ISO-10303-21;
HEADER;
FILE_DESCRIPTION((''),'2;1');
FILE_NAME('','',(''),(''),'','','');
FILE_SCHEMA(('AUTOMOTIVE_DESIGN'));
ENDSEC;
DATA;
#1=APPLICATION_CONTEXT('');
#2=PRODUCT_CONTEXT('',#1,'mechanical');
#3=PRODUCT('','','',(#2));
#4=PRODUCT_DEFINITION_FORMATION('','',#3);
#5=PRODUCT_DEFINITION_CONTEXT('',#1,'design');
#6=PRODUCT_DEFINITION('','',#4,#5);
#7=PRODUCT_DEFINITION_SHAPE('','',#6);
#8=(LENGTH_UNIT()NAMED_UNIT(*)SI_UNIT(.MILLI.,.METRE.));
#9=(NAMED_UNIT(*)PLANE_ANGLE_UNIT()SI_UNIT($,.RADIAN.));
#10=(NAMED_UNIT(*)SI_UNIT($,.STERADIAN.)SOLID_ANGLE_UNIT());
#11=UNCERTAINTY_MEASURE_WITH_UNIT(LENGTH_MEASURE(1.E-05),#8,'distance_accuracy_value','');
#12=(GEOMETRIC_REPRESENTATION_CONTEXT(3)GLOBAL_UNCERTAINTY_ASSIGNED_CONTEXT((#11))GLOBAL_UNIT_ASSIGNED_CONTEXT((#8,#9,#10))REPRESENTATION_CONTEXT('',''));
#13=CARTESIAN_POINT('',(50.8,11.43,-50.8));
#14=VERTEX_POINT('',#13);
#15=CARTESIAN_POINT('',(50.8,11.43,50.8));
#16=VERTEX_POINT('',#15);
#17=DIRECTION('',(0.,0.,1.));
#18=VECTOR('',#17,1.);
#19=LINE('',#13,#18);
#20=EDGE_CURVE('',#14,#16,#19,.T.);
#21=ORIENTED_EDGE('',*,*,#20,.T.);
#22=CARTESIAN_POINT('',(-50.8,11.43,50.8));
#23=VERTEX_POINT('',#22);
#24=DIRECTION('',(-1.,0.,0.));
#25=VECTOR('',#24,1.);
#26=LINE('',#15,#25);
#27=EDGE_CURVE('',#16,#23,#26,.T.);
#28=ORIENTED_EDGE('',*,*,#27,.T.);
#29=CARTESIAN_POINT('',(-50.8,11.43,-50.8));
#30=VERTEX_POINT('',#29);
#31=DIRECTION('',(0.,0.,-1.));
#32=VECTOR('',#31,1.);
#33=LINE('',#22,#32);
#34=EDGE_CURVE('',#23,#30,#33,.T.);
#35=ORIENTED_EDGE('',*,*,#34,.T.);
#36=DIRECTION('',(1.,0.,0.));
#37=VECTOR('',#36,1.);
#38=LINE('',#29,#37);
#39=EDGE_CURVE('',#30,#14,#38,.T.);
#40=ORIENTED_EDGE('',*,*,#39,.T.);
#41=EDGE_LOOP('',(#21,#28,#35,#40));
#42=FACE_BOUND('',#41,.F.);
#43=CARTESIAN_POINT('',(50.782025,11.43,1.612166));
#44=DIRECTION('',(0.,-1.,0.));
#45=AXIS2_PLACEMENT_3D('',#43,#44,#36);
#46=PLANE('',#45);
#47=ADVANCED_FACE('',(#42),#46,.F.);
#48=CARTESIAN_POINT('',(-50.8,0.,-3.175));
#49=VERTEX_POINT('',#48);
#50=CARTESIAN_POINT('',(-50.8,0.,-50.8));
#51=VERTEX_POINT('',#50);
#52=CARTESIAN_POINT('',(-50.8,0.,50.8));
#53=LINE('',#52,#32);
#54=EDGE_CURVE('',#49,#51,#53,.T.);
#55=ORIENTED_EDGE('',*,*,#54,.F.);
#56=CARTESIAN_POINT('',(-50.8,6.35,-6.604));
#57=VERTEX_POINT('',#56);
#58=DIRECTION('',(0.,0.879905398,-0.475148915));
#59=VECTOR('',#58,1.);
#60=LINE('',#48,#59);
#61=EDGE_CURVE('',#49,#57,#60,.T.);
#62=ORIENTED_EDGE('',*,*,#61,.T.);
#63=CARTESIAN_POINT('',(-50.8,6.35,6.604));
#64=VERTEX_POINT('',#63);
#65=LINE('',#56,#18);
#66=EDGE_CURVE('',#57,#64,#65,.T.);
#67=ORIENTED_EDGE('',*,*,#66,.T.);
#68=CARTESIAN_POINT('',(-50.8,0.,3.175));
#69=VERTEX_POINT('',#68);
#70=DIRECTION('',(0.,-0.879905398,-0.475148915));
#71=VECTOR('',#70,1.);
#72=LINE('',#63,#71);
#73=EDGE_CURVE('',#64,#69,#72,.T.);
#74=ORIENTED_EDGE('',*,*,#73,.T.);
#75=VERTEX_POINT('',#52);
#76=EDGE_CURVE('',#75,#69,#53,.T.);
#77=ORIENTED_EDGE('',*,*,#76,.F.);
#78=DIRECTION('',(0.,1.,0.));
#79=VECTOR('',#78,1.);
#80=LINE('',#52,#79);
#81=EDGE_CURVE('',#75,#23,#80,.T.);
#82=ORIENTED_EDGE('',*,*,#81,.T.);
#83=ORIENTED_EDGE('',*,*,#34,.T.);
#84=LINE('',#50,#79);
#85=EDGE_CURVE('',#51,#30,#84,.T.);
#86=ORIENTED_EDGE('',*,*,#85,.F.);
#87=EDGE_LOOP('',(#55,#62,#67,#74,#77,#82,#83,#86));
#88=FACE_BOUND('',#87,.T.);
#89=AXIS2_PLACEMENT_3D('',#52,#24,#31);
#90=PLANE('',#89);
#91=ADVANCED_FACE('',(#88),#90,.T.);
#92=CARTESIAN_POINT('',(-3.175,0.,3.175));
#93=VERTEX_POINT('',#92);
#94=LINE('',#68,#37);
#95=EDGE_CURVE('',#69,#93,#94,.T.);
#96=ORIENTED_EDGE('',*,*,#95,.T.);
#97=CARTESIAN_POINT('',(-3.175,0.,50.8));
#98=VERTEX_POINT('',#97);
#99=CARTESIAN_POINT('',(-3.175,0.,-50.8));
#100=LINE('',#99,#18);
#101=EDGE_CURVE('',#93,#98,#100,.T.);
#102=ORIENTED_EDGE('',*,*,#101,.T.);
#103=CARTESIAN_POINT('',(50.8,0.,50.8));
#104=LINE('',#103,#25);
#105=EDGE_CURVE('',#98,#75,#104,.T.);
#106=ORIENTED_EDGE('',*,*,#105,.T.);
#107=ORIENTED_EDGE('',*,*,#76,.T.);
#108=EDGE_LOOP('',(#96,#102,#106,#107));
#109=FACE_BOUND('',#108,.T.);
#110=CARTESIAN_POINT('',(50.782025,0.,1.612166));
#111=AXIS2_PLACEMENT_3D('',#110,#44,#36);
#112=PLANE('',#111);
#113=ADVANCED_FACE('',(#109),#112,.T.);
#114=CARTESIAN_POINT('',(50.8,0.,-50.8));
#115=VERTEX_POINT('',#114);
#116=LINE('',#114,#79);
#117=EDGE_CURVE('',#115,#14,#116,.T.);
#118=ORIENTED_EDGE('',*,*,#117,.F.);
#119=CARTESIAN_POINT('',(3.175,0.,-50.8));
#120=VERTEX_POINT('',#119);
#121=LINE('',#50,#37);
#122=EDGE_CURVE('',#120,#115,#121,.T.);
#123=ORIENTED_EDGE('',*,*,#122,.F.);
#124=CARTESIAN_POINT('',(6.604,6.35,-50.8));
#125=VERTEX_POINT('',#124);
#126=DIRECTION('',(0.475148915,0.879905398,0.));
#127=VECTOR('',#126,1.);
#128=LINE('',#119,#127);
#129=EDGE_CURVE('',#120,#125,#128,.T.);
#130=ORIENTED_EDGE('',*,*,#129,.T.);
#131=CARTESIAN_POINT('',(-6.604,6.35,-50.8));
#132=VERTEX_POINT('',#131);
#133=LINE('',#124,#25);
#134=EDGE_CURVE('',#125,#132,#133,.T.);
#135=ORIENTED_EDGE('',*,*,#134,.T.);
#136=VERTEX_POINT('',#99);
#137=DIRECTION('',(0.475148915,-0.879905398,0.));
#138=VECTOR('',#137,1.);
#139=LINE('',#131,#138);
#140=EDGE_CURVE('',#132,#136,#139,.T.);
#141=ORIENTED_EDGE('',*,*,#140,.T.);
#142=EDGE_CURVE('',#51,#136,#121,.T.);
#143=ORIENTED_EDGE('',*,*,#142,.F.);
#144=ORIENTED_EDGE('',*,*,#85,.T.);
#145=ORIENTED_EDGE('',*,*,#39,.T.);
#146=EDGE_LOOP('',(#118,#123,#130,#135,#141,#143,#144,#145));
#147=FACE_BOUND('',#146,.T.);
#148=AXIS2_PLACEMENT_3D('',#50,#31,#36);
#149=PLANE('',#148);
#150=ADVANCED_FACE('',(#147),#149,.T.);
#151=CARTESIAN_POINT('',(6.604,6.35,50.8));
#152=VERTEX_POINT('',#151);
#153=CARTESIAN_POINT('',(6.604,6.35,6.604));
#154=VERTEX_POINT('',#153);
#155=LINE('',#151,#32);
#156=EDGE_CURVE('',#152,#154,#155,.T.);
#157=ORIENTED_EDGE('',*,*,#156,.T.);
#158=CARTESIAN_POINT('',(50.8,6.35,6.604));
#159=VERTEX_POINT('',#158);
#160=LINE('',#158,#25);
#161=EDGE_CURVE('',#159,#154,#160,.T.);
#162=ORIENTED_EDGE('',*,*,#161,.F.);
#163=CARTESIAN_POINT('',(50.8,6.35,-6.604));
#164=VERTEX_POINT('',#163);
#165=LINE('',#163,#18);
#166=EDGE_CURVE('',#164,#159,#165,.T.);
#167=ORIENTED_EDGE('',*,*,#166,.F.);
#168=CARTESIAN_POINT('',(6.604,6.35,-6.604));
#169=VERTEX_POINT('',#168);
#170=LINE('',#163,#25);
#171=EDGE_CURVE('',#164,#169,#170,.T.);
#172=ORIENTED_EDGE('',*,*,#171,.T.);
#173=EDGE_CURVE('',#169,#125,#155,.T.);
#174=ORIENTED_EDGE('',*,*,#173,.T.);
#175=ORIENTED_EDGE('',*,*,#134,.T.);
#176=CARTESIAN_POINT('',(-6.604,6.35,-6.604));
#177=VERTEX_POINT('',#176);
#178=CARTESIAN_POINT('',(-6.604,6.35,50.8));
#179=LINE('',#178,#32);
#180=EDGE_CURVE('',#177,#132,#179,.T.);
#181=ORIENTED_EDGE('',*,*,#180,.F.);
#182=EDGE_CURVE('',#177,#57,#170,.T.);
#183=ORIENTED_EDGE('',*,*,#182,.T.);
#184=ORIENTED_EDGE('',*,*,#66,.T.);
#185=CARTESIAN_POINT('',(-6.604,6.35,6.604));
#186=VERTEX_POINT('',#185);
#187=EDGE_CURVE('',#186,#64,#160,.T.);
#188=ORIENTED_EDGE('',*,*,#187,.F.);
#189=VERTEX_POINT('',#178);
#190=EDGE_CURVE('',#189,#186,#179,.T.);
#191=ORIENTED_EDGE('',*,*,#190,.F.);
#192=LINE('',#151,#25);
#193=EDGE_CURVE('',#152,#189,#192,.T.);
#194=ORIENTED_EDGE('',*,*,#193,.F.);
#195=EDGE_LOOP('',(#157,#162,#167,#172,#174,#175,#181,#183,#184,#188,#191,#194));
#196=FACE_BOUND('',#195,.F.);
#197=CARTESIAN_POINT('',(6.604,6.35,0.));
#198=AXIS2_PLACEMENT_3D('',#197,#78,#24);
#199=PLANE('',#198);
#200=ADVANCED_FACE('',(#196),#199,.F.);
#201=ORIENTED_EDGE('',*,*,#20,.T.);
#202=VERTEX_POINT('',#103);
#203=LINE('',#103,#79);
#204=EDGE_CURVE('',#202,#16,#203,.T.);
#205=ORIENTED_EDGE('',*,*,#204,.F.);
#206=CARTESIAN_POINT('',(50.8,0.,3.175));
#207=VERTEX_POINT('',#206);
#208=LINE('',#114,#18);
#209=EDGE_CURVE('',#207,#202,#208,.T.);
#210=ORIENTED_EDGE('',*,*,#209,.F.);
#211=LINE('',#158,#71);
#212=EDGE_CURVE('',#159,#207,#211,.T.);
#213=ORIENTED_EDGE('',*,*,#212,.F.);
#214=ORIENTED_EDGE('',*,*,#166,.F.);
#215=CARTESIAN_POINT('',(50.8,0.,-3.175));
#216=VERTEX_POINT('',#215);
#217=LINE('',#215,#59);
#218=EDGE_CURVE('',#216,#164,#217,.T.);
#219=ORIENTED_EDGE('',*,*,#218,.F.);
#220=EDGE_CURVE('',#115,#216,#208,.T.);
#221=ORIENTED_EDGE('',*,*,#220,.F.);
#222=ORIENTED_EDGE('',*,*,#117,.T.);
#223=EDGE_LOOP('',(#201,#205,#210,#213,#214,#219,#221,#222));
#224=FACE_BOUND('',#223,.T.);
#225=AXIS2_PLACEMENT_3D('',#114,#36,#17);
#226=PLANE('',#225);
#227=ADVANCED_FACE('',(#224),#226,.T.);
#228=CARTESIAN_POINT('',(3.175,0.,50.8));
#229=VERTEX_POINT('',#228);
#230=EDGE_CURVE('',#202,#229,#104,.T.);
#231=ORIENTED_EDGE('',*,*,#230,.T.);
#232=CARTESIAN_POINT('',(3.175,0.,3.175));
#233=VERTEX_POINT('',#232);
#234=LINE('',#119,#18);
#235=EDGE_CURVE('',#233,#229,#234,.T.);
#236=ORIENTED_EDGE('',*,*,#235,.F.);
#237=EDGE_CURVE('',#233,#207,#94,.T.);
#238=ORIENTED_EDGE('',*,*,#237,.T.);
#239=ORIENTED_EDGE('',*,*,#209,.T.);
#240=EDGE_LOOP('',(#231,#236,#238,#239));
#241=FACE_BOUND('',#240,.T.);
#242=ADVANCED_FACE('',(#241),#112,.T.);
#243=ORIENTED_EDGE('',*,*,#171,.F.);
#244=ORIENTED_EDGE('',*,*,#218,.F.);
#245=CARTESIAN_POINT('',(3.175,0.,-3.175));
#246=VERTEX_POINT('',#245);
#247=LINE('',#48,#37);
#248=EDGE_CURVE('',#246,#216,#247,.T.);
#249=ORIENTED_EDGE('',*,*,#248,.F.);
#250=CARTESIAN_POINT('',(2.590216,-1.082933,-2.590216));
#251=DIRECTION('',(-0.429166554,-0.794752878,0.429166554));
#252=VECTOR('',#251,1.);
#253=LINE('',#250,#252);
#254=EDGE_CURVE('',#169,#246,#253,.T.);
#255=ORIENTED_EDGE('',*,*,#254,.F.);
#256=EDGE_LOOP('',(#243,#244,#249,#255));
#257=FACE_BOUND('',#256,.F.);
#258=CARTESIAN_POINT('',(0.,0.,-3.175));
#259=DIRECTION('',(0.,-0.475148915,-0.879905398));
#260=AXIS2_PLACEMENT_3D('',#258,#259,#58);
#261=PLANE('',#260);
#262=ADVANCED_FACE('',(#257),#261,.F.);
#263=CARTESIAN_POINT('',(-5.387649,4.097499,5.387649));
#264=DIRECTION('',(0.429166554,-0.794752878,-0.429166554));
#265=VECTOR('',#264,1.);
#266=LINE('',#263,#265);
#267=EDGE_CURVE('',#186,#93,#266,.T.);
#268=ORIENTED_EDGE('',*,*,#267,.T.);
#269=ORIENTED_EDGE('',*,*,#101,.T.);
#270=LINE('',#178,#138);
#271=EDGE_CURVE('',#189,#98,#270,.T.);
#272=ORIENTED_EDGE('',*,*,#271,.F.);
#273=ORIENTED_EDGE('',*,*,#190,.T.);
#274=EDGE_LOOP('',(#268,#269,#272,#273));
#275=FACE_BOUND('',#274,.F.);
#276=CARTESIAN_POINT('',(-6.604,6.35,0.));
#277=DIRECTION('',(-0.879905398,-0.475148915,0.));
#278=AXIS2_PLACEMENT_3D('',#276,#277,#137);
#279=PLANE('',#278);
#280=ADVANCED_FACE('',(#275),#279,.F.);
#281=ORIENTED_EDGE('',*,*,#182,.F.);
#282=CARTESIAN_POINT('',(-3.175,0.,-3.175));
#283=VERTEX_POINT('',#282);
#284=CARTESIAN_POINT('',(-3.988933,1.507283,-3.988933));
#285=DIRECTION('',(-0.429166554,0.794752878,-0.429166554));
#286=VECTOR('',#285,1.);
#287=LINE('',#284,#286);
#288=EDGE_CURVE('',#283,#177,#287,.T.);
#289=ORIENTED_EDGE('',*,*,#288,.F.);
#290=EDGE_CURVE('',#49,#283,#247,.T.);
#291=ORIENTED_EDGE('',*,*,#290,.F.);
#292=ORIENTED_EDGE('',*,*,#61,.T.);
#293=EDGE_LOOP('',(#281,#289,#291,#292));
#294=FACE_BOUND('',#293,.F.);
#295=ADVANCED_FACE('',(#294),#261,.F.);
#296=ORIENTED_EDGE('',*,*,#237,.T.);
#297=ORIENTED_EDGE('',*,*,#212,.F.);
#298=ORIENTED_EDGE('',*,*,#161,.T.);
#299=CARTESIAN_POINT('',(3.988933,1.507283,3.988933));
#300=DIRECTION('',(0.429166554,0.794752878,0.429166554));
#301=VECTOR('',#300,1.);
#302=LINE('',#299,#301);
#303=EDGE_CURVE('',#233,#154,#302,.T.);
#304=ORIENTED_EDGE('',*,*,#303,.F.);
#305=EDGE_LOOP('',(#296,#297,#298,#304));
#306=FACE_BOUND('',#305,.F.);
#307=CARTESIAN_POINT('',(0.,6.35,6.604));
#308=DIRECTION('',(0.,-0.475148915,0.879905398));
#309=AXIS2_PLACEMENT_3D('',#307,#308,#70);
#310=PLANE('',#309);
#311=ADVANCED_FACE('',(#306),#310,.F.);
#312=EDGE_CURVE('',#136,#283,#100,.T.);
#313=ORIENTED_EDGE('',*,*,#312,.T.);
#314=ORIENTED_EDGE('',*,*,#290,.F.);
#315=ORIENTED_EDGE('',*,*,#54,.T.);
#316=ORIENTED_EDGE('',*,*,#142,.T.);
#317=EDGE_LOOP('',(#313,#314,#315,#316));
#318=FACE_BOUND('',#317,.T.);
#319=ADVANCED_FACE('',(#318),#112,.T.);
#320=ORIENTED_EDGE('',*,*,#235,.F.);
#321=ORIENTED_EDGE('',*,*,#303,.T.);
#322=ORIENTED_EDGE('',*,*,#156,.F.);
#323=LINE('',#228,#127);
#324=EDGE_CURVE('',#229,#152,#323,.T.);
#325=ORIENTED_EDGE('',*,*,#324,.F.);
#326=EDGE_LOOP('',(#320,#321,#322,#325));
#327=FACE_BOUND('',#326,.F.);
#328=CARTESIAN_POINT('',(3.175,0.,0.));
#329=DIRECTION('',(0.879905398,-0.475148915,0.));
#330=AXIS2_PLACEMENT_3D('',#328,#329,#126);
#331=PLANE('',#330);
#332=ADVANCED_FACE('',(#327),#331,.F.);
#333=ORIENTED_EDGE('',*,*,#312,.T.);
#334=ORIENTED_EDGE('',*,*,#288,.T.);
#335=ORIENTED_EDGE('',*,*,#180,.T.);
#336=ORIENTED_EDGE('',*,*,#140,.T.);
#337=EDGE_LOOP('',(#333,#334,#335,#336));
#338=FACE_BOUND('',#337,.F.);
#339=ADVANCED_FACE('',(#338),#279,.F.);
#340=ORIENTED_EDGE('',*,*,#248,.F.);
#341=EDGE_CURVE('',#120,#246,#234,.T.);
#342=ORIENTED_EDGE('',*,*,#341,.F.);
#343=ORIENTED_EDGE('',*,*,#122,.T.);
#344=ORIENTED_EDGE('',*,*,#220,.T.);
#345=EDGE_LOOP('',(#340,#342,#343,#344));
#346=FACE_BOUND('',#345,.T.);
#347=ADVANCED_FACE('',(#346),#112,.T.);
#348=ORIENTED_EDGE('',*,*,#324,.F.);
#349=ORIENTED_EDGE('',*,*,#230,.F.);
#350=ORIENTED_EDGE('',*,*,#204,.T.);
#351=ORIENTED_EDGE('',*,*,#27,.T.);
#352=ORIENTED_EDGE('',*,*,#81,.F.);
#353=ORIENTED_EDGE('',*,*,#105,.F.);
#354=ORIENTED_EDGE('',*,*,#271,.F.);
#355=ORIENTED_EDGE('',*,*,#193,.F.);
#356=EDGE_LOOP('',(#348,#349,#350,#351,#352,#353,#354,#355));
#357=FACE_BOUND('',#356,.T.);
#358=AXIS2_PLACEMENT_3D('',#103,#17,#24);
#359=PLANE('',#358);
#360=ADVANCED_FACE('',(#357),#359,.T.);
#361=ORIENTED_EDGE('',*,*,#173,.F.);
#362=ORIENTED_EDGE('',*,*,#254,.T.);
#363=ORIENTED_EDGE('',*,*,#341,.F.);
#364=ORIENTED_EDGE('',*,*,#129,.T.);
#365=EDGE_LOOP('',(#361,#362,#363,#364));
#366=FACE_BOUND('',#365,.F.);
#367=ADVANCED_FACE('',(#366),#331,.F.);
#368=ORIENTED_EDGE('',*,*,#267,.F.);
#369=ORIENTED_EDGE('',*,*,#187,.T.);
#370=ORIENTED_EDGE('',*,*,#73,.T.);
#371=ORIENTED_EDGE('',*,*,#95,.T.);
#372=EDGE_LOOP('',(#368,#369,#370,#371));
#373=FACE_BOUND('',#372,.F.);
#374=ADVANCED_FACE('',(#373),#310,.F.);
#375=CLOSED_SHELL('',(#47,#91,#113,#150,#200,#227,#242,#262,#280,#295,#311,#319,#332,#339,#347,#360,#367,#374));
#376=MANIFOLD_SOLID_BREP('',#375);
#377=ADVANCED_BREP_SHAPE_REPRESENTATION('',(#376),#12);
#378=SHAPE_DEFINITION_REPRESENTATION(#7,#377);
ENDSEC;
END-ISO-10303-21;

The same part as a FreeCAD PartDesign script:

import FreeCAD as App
import Part
import Sketcher

V = App.Vector
Q = App.Units.Quantity

doc = App.newDocument("Part")
params = doc.addObject("Spreadsheet::Sheet", "Params")
for row, (alias, value) in enumerate([
    ("sketch1_width", "4 in"),
    ("pad1_length", "0.45 in"),
    ("sketch2_height", "0.25 in"),
    ("sketch2_height2", "0.52 in"),
    ("pocket1_length", "4 in"),
    ("sketch3_width", "0.25 in"),
    ("sketch3_width2", "0.52 in"),
    ("pocket2_length", "4 in"),
], start=1):
    params.set(f"A{row}", alias)
    params.set(f"B{row}", "=" + value)
    params.setAlias(f"B{row}", alias)

body = doc.addObject("PartDesign::Body", "Body")

# Sketch on XZ plane
sketch1 = body.newObject("Sketcher::SketchObject", "Sketch")
sketch1.AttachmentSupport = (doc.getObject("XZ_Plane"), [""])
sketch1.MapMode = "FlatFace"
sketch1.addGeometry([
    Part.LineSegment(V(-50.8, -50.8, 0), V(50.8, -50.8, 0)),
    Part.LineSegment(V(50.8, -50.8, 0), V(50.8, 50.8, 0)),
    Part.LineSegment(V(50.8, 50.8, 0), V(-50.8, 50.8, 0)),
    Part.LineSegment(V(-50.8, 50.8, 0), V(-50.8, -50.8, 0)),
], False)
sketch1.addConstraint([
    Sketcher.Constraint("Coincident", 0, 2, 1, 1),
    Sketcher.Constraint("Coincident", 1, 2, 2, 1),
    Sketcher.Constraint("Coincident", 2, 2, 3, 1),
    Sketcher.Constraint("Coincident", 3, 2, 0, 1),
    Sketcher.Constraint("Horizontal", 0),
    Sketcher.Constraint("Vertical", 1),
    Sketcher.Constraint("Horizontal", 2),
    Sketcher.Constraint("Vertical", 3),
    Sketcher.Constraint("Symmetric", 0, 2, 2, 2, -1, 1),
    Sketcher.Constraint("Equal", 2, 1),
    Sketcher.Constraint("DistanceX", 0, 1, 0, 2, Q("4 in")),
])
sketch1.setExpression("Constraints[10]", "Params.sketch1_width")
pad1 = body.newObject("PartDesign::Pad", "Pad")
pad1.Profile = sketch1
pad1.setExpression("Length", "Params.pad1_length")
pad1.Reversed = True

# Sketch on YZ plane
sketch2 = body.newObject("Sketcher::SketchObject", "Sketch001")
sketch2.AttachmentSupport = (doc.getObject("YZ_Plane"), [""])
sketch2.MapMode = "FlatFace"
sketch2.addGeometry([
    Part.LineSegment(V(6.35, 6.604, 0), V(0, 3.175, 0)),
    Part.LineSegment(V(0, 3.175, 0), V(0, -3.175, 0)),
    Part.LineSegment(V(0, -3.175, 0), V(6.35, -6.604, 0)),
    Part.LineSegment(V(6.35, -6.604, 0), V(6.35, 6.604, 0)),
], False)
sketch2.addConstraint([
    Sketcher.Constraint("Coincident", 0, 2, 1, 1),
    Sketcher.Constraint("Coincident", 1, 2, 2, 1),
    Sketcher.Constraint("Coincident", 2, 2, 3, 1),
    Sketcher.Constraint("Coincident", 3, 2, 0, 1),
    Sketcher.Constraint("Vertical", 1),
    Sketcher.Constraint("Vertical", 3),
    Sketcher.Constraint("Symmetric", 0, 2, 1, 2, -1, 1),
    Sketcher.Constraint("Equal", 0, 2),
    Sketcher.Constraint("DistanceY", 1, 2, 1, 1, Q("0.25 in")),
    Sketcher.Constraint("DistanceY", 3, 1, 3, 2, Q("0.52 in")),
    Sketcher.Constraint("DistanceX", -1, 1, 2, 2, Q("0.25 in")),
])
sketch2.setExpression("Constraints[8]", "Params.sketch2_height")
sketch2.setExpression("Constraints[9]", "Params.sketch2_height2")
pocket1 = body.newObject("PartDesign::Pocket", "Pocket")
pocket1.Profile = sketch2
pocket1.setExpression("Length", "Params.pocket1_length")
pocket1.Midplane = True

# Sketch on XY plane
sketch3 = body.newObject("Sketcher::SketchObject", "Sketch002")
sketch3.AttachmentSupport = (doc.getObject("XY_Plane"), [""])
sketch3.MapMode = "FlatFace"
sketch3.addGeometry([
    Part.LineSegment(V(-6.604, 6.35, 0), V(-3.175, 0, 0)),
    Part.LineSegment(V(-3.175, 0, 0), V(3.175, 0, 0)),
    Part.LineSegment(V(3.175, 0, 0), V(6.604, 6.35, 0)),
    Part.LineSegment(V(6.604, 6.35, 0), V(-6.604, 6.35, 0)),
], False)
sketch3.addConstraint([
    Sketcher.Constraint("Coincident", 0, 2, 1, 1),
    Sketcher.Constraint("Coincident", 1, 2, 2, 1),
    Sketcher.Constraint("Coincident", 2, 2, 3, 1),
    Sketcher.Constraint("Coincident", 3, 2, 0, 1),
    Sketcher.Constraint("Horizontal", 1),
    Sketcher.Constraint("Horizontal", 3),
    Sketcher.Constraint("Symmetric", 0, 2, 1, 2, -1, 1),
    Sketcher.Constraint("Equal", 0, 2),
    Sketcher.Constraint("DistanceX", 1, 1, 1, 2, Q("0.25 in")),
    Sketcher.Constraint("DistanceX", 3, 2, 3, 1, Q("0.52 in")),
    Sketcher.Constraint("DistanceY", -1, 1, 2, 2, Q("0.25 in")),
])
sketch3.setExpression("Constraints[8]", "Params.sketch3_width")
sketch3.setExpression("Constraints[9]", "Params.sketch3_width2")
pocket2 = body.newObject("PartDesign::Pocket", "Pocket001")
pocket2.Profile = sketch3
pocket2.setExpression("Length", "Params.pocket2_length")
pocket2.Midplane = True

doc.recompute()
